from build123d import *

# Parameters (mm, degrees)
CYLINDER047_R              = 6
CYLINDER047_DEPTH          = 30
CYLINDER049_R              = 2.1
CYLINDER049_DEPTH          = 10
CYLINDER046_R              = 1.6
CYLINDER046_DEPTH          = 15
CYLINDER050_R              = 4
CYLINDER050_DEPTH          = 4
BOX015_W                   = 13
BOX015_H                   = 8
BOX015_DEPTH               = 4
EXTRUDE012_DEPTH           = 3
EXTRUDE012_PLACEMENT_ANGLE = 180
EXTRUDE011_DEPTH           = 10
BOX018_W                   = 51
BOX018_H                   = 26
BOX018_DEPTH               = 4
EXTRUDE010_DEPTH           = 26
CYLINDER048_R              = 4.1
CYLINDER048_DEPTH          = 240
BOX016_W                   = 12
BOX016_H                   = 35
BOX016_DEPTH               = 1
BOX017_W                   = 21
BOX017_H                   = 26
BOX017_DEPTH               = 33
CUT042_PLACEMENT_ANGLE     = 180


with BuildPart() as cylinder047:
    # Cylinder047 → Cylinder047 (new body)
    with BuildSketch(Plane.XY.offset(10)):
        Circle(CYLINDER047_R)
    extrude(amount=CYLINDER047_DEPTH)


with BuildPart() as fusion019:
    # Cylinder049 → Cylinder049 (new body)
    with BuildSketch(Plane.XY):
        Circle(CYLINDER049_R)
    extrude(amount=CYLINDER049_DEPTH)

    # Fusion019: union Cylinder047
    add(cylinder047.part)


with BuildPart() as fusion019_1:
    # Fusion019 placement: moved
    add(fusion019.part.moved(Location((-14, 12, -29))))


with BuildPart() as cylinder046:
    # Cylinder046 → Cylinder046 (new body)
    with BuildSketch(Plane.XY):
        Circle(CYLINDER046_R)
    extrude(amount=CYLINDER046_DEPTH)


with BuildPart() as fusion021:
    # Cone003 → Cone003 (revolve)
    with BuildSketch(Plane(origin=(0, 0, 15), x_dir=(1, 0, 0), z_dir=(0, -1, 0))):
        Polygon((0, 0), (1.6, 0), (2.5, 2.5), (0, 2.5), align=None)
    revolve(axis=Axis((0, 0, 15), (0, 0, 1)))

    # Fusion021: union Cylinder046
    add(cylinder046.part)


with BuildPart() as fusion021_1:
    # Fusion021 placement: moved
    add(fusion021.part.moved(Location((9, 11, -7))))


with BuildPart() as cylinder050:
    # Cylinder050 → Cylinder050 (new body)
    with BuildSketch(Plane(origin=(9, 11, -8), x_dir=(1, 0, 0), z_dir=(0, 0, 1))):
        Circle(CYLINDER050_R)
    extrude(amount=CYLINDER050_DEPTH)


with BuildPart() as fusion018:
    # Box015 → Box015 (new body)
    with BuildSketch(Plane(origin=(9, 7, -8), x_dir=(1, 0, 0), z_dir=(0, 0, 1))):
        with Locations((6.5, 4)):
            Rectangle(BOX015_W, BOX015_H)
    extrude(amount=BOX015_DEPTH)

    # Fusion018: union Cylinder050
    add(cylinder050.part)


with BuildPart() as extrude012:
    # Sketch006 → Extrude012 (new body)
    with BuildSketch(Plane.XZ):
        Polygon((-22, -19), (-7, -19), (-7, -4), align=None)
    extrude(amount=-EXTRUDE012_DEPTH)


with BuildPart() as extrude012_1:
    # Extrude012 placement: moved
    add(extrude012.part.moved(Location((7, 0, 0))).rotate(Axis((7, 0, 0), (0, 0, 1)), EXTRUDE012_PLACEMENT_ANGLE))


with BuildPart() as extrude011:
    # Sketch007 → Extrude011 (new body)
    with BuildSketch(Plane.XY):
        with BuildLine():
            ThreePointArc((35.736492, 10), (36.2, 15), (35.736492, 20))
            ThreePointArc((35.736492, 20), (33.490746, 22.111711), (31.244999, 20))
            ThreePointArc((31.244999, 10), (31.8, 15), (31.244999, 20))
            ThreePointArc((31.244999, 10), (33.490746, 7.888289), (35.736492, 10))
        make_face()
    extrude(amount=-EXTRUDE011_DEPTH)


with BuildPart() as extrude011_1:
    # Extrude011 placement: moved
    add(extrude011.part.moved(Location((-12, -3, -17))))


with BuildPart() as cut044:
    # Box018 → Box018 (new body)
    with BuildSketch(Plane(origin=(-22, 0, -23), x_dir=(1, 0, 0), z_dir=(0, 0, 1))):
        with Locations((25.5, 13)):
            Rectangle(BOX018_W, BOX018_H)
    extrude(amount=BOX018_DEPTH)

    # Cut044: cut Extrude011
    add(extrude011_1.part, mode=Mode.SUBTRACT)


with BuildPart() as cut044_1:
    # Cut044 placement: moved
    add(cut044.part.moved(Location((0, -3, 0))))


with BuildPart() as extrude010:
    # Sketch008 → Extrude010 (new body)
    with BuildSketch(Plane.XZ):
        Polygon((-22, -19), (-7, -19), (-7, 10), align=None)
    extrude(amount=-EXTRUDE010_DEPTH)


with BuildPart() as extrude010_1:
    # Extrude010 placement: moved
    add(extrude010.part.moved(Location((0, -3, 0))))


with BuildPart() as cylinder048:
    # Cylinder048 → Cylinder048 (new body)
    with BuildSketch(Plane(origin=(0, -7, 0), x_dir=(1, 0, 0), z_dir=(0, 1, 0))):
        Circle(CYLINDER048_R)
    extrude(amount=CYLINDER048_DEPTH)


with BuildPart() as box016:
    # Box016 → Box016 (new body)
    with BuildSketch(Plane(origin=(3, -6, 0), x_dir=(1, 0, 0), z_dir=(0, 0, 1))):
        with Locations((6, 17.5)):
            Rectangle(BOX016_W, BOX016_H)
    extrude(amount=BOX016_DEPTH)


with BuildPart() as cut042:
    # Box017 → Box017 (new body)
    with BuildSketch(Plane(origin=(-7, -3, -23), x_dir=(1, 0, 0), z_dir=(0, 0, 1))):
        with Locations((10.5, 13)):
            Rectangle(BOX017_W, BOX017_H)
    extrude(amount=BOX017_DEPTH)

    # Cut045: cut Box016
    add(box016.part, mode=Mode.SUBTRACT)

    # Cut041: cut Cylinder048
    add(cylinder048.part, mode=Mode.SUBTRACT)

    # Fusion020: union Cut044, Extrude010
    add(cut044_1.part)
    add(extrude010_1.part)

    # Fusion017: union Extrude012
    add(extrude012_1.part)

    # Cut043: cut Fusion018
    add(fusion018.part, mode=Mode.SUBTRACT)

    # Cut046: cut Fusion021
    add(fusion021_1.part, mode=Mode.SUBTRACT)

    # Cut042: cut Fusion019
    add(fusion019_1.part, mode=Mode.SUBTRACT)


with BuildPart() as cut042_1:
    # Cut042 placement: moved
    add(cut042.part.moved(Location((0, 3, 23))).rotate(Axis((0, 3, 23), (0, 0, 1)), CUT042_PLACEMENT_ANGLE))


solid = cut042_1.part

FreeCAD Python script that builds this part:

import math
import FreeCAD as App
import Part
import Sketcher
from FreeCAD import Vector


def add_polygon(sketch, points):
    """Adds a closed chain of lines whose ends are joined by coincident constraints."""
    first, n = sketch.GeometryCount, len(points)
    for a, b in zip(points, points[1:] + points[:1]):
        sketch.addGeometry(Part.LineSegment(App.Vector(*a, 0), App.Vector(*b, 0)), False)
    for i in range(n):
        sketch.addConstraint(Sketcher.Constraint("Coincident", first + i, 2, first + (i + 1) % n, 1))

doc = App.newDocument("Part")
body = doc.addObject("PartDesign::Body", "Body")

# Sketch on XY plane
sketch1 = body.newObject("Sketcher::SketchObject", "Sketch")
sketch1.AttachmentSupport = (doc.getObject("XY_Plane"), [""])
sketch1.MapMode = "FlatFace"
sketch1.AttachmentOffset = App.Placement(Vector(0, 0, 10), App.Rotation())
sketch1.addGeometry(Part.Circle(Vector(0, 0, 0), Vector(0, 0, 1), 6), False)
sketch1.addConstraint([
    Sketcher.Constraint("Coincident", 0, 3, -1, 1),
    Sketcher.Constraint("Diameter", 0, 12.0),
])
pad1 = body.newObject("PartDesign::Pad", "Pad")
pad1.Profile = sketch1
pad1.Length = 30
body2 = doc.addObject("PartDesign::Body", "Body001")

# Sketch on XY plane
sketch2 = body2.newObject("Sketcher::SketchObject", "Sketch001")
sketch2.AttachmentSupport = (doc.getObject("XY_Plane001"), [""])
sketch2.MapMode = "FlatFace"
sketch2.addGeometry(Part.Circle(Vector(0, 0, 0), Vector(0, 0, 1), 2.1), False)
sketch2.addConstraint([
    Sketcher.Constraint("Coincident", 0, 3, -1, 1),
    Sketcher.Constraint("Diameter", 0, 4.2),
])
pad2 = body2.newObject("PartDesign::Pad", "Pad001")
pad2.Profile = sketch2
pad2.Length = 10
doc.recompute()

boolean = body2.newObject("PartDesign::Boolean", "Boolean")
boolean.Type = "Fuse"
boolean.addObjects([body])
body3 = doc.addObject("PartDesign::Body", "Body002")
doc.recompute()

body2.Placement = App.Placement(Vector(-14, 12, -29), App.Rotation(Vector(0, 0, 1), 0))
boolean2 = body3.newObject("PartDesign::Boolean", "Boolean001")
boolean2.Type = "Fuse"
boolean2.addObjects([body2])
body4 = doc.addObject("PartDesign::Body", "Body003")

# Sketch on XY plane
sketch3 = body4.newObject("Sketcher::SketchObject", "Sketch002")
sketch3.AttachmentSupport = (doc.getObject("XY_Plane003"), [""])
sketch3.MapMode = "FlatFace"
sketch3.addGeometry(Part.Circle(Vector(0, 0, 0), Vector(0, 0, 1), 1.6), False)
sketch3.addConstraint([
    Sketcher.Constraint("Coincident", 0, 3, -1, 1),
    Sketcher.Constraint("Diameter", 0, 3.2),
])
pad3 = body4.newObject("PartDesign::Pad", "Pad002")
pad3.Profile = sketch3
pad3.Length = 15
body5 = doc.addObject("PartDesign::Body", "Body004")

# Sketch on XZ plane
sketch4 = body5.newObject("Sketcher::SketchObject", "Sketch003")
sketch4.AttachmentSupport = (doc.getObject("XZ_Plane004"), [""])
sketch4.MapMode = "FlatFace"
add_polygon(sketch4, [(0, 15), (1.6, 15), (2.5, 17.5), (0, 17.5)])  # lines 0-3
sketch4.addConstraint([
    Sketcher.Constraint("Horizontal", 0),
    Sketcher.Constraint("Horizontal", 2),
    Sketcher.Constraint("Vertical", 3),
    Sketcher.Constraint("PointOnObject", 2, 2, -2),
    Sketcher.Constraint("Equal", 2, 3),
    Sketcher.Constraint("DistanceX", 0, 1, 0, 2, 1.6),
    Sketcher.Constraint("DistanceX", 2, 2, 2, 1, 2.5),
    Sketcher.Constraint("DistanceY", -1, 1, 0, 2, 15.0),
])
revolution = body5.newObject("PartDesign::Revolution", "Revolution")
revolution.Profile = sketch4
revolution.ReferenceAxis = (sketch4, ["V_Axis"])
revolution.Angle = 360
doc.recompute()

boolean3 = body5.newObject("PartDesign::Boolean", "Boolean002")
boolean3.Type = "Fuse"
boolean3.addObjects([body4])
body6 = doc.addObject("PartDesign::Body", "Body005")
doc.recompute()

body5.Placement = App.Placement(Vector(9, 11, -7), App.Rotation(Vector(0, 0, 1), 0))
boolean4 = body6.newObject("PartDesign::Boolean", "Boolean003")
boolean4.Type = "Fuse"
boolean4.addObjects([body5])
body7 = doc.addObject("PartDesign::Body", "Body006")

# Sketch on XY plane
sketch5 = body7.newObject("Sketcher::SketchObject", "Sketch004")
sketch5.AttachmentSupport = (doc.getObject("XY_Plane006"), [""])
sketch5.MapMode = "FlatFace"
sketch5.AttachmentOffset = App.Placement(Vector(0, 0, -8), App.Rotation())
sketch5.addGeometry(Part.Circle(Vector(9, 11, 0), Vector(0, 0, 1), 4), False)
sketch5.addConstraint([
    Sketcher.Constraint("Diameter", 0, 8.0),
    Sketcher.Constraint("DistanceX", -1, 1, 0, 3, 9.0),
    Sketcher.Constraint("DistanceY", -1, 1, 0, 3, 11.0),
])
pad4 = body7.newObject("PartDesign::Pad", "Pad003")
pad4.Profile = sketch5
pad4.Length = 4
body8 = doc.addObject("PartDesign::Body", "Body007")

# Sketch on XY plane
sketch6 = body8.newObject("Sketcher::SketchObject", "Sketch005")
sketch6.AttachmentSupport = (doc.getObject("XY_Plane007"), [""])
sketch6.MapMode = "FlatFace"
sketch6.AttachmentOffset = App.Placement(Vector(0, 0, -8), App.Rotation())
add_polygon(sketch6, [(9, 15), (9, 7), (22, 7), (22, 15)])  # lines 0-3
sketch6.addConstraint([
    Sketcher.Constraint("Vertical", 0),
    Sketcher.Constraint("Horizontal", 1),
    Sketcher.Constraint("Vertical", 2),
    Sketcher.Constraint("Horizontal", 3),
    Sketcher.Constraint("DistanceX", 1, 1, 1, 2, 13.0),
    Sketcher.Constraint("DistanceY", 0, 2, 0, 1, 8.0),
    Sketcher.Constraint("DistanceX", -1, 1, 0, 2, 9.0),
    Sketcher.Constraint("DistanceY", -1, 1, 0, 2, 7.0),
])
pad5 = body8.newObject("PartDesign::Pad", "Pad004")
pad5.Profile = sketch6
pad5.Length = 4
doc.recompute()

boolean5 = body8.newObject("PartDesign::Boolean", "Boolean004")
boolean5.Type = "Fuse"
boolean5.addObjects([body7])
body9 = doc.addObject("PartDesign::Body", "Body008")

# Sketch on XZ plane
sketch7 = body9.newObject("Sketcher::SketchObject", "Sketch006")
sketch7.AttachmentSupport = (doc.getObject("XZ_Plane008"), [""])
sketch7.MapMode = "FlatFace"
add_polygon(sketch7, [(-22, -19), (-7, -19), (-7, -4)])  # lines 0-2
sketch7.addConstraint([
    Sketcher.Constraint("Horizontal", 0),
    Sketcher.Constraint("Vertical", 1),
    Sketcher.Constraint("Equal", 0, 1),
    Sketcher.Constraint("DistanceX", 0, 1, 0, 2, 15.0),
    Sketcher.Constraint("DistanceX", 0, 2, -1, 1, 7.0),
    Sketcher.Constraint("DistanceY", 0, 2, -1, 1, 19.0),
])
pad6 = body9.newObject("PartDesign::Pad", "Pad005")
pad6.Profile = sketch7
pad6.Length = 3
pad6.Reversed = True
body10 = doc.addObject("PartDesign::Body", "Body009")
doc.recompute()

body9.Placement = App.Placement(Vector(7, 0, 0), App.Rotation(Vector(0, 0, 1), 180))
boolean6 = body10.newObject("PartDesign::Boolean", "Boolean005")
boolean6.Type = "Fuse"
boolean6.addObjects([body9])
body11 = doc.addObject("PartDesign::Body", "Body010")

# Sketch on XY plane
sketch8 = body11.newObject("Sketcher::SketchObject", "Sketch007")
sketch8.AttachmentSupport = (doc.getObject("XY_Plane010"), [""])
sketch8.MapMode = "FlatFace"
sketch8.addGeometry([
    Part.ArcOfCircle(Part.Circle(Vector(9, 15, 0), Vector(0, 0, 1), 27.2), math.radians(-11), math.radians(11)),
    Part.ArcOfCircle(Part.Circle(Vector(33.5, 19.9, 0), Vector(0, 0, 1), 2.3), math.radians(4), math.radians(176)),
    Part.ArcOfCircle(Part.Circle(Vector(9, 15, 0), Vector(0, 0, 1), 22.8), math.radians(-13), math.radians(13)),
    Part.ArcOfCircle(Part.Circle(Vector(33.5, 10.1, 0), Vector(0, 0, 1), 2.3), math.radians(-176), math.radians(-4)),
], False)
sketch8.addConstraint([
    Sketcher.Constraint("Coincident", 0, 2, 1, 1),
    Sketcher.Constraint("Coincident", 1, 2, 2, 2),
    Sketcher.Constraint("Coincident", 2, 1, 3, 1),
    Sketcher.Constraint("Coincident", 3, 2, 0, 1),
    Sketcher.Constraint("Equal", 1, 3),
    Sketcher.Constraint("Horizontal", 0, 3, 2, 3),
    Sketcher.Constraint("Horizontal", 0, 2, 1, 2),
    Sketcher.Constraint("Horizontal", 2, 1, 3, 2),
    Sketcher.Constraint("Vertical", 1, 3, 3, 3),
    Sketcher.Constraint("Radius", 1, 2.25),
    Sketcher.Constraint("DistanceY", -1, 1, 0, 3, 15.0),
    Sketcher.Constraint("DistanceY", -1, 1, 0, 2, 20.0),
    Sketcher.Constraint("DistanceX", -1, 1, 1, 2, 31.244999),
    Sketcher.Constraint("Radius", 0, 27.200005),
    Sketcher.Constraint("Radius", 2, 22.799982),
    Sketcher.Constraint("DistanceY", -1, 1, 1, 3, 19.861711),
])
pad7 = body11.newObject("PartDesign::Pad", "Pad006")
pad7.Profile = sketch8
pad7.Length = 10
pad7.Reversed = True
body12 = doc.addObject("PartDesign::Body", "Body011")
doc.recompute()

body11.Placement = App.Placement(Vector(-12, -3, -17), App.Rotation(Vector(0, 0, 1), 0))
boolean7 = body12.newObject("PartDesign::Boolean", "Boolean006")
boolean7.Type = "Fuse"
boolean7.addObjects([body11])
body13 = doc.addObject("PartDesign::Body", "Body012")

# Sketch on XY plane
sketch9 = body13.newObject("Sketcher::SketchObject", "Sketch008")
sketch9.AttachmentSupport = (doc.getObject("XY_Plane012"), [""])
sketch9.MapMode = "FlatFace"
sketch9.AttachmentOffset = App.Placement(Vector(0, 0, -23), App.Rotation())
add_polygon(sketch9, [(-22, 26), (-22, 0), (29, 0), (29, 26)])  # lines 0-3
sketch9.addConstraint([
    Sketcher.Constraint("Vertical", 0),
    Sketcher.Constraint("Horizontal", 1),
    Sketcher.Constraint("Vertical", 2),
    Sketcher.Constraint("Horizontal", 3),
    Sketcher.Constraint("PointOnObject", 0, 2, -1),
    Sketcher.Constraint("DistanceX", 1, 1, 1, 2, 51.0),
    Sketcher.Constraint("DistanceY", 0, 2, 0, 1, 26.0),
    Sketcher.Constraint("DistanceX", 0, 2, -1, 1, 22.0),
])
pad8 = body13.newObject("PartDesign::Pad", "Pad007")
pad8.Profile = sketch9
pad8.Length = 4
doc.recompute()

boolean8 = body13.newObject("PartDesign::Boolean", "Boolean007")
boolean8.Type = "Cut"
boolean8.addObjects([body12])
body14 = doc.addObject("PartDesign::Body", "Body013")
doc.recompute()

body13.Placement = App.Placement(Vector(0, -3, 0), App.Rotation(Vector(0, 0, 1), 0))
boolean9 = body14.newObject("PartDesign::Boolean", "Boolean008")
boolean9.Type = "Fuse"
boolean9.addObjects([body13])
body15 = doc.addObject("PartDesign::Body", "Body014")

# Sketch on XZ plane
sketch10 = body15.newObject("Sketcher::SketchObject", "Sketch009")
sketch10.AttachmentSupport = (doc.getObject("XZ_Plane014"), [""])
sketch10.MapMode = "FlatFace"
add_polygon(sketch10, [(-22, -19), (-7, -19), (-7, 10)])  # lines 0-2
sketch10.addConstraint([
    Sketcher.Constraint("Horizontal", 0),
    Sketcher.Constraint("Vertical", 1),
    Sketcher.Constraint("DistanceX", 0, 1, 0, 2, 15.0),
    Sketcher.Constraint("DistanceY", 1, 1, 1, 2, 29.0),
    Sketcher.Constraint("DistanceX", 0, 2, -1, 1, 7.0),
    Sketcher.Constraint("DistanceY", 0, 2, -1, 1, 19.0),
])
pad9 = body15.newObject("PartDesign::Pad", "Pad008")
pad9.Profile = sketch10
pad9.Length = 26
pad9.Reversed = True
body16 = doc.addObject("PartDesign::Body", "Body015")
doc.recompute()

body15.Placement = App.Placement(Vector(0, -3, 0), App.Rotation(Vector(0, 0, 1), 0))
boolean10 = body16.newObject("PartDesign::Boolean", "Boolean009")
boolean10.Type = "Fuse"
boolean10.addObjects([body15])
body17 = doc.addObject("PartDesign::Body", "Body016")

# Sketch on XZ plane
sketch11 = body17.newObject("Sketcher::SketchObject", "Sketch010")
sketch11.AttachmentSupport = (doc.getObject("XZ_Plane016"), [""])
sketch11.MapMode = "FlatFace"
sketch11.AttachmentOffset = App.Placement(Vector(0, 0, 7), App.Rotation())
sketch11.addGeometry(Part.Circle(Vector(0, 0, 0), Vector(0, 0, 1), 4.1), False)
sketch11.addConstraint([
    Sketcher.Constraint("Coincident", 0, 3, -1, 1),
    Sketcher.Constraint("Diameter", 0, 8.2),
])
pad10 = body17.newObject("PartDesign::Pad", "Pad009")
pad10.Profile = sketch11
pad10.Length = 240
pad10.Reversed = True
body18 = doc.addObject("PartDesign::Body", "Body017")

# Sketch on XY plane
sketch12 = body18.newObject("Sketcher::SketchObject", "Sketch011")
sketch12.AttachmentSupport = (doc.getObject("XY_Plane017"), [""])
sketch12.MapMode = "FlatFace"
add_polygon(sketch12, [(3, 29), (3, -6), (15, -6), (15, 29)])  # lines 0-3
sketch12.addConstraint([
    Sketcher.Constraint("Vertical", 0),
    Sketcher.Constraint("Horizontal", 1),
    Sketcher.Constraint("Vertical", 2),
    Sketcher.Constraint("Horizontal", 3),
    Sketcher.Constraint("DistanceX", 1, 1, 1, 2, 12.0),
    Sketcher.Constraint("DistanceY", 0, 2, 0, 1, 35.0),
    Sketcher.Constraint("DistanceX", -1, 1, 0, 2, 3.0),
    Sketcher.Constraint("DistanceY", 0, 2, -1, 1, 6.0),
])
pad11 = body18.newObject("PartDesign::Pad", "Pad010")
pad11.Profile = sketch12
pad11.Length = 1
body19 = doc.addObject("PartDesign::Body", "Body018")

# Sketch on XY plane
sketch13 = body19.newObject("Sketcher::SketchObject", "Sketch012")
sketch13.AttachmentSupport = (doc.getObject("XY_Plane018"), [""])
sketch13.MapMode = "FlatFace"
sketch13.AttachmentOffset = App.Placement(Vector(0, 0, -23), App.Rotation())
add_polygon(sketch13, [(-7, 23), (-7, -3), (14, -3), (14, 23)])  # lines 0-3
sketch13.addConstraint([
    Sketcher.Constraint("Vertical", 0),
    Sketcher.Constraint("Horizontal", 1),
    Sketcher.Constraint("Vertical", 2),
    Sketcher.Constraint("Horizontal", 3),
    Sketcher.Constraint("DistanceX", 1, 1, 1, 2, 21.0),
    Sketcher.Constraint("DistanceY", 0, 2, 0, 1, 26.0),
    Sketcher.Constraint("DistanceX", 0, 2, -1, 1, 7.0),
    Sketcher.Constraint("DistanceY", 0, 2, -1, 1, 3.0),
])
pad12 = body19.newObject("PartDesign::Pad", "Pad011")
pad12.Profile = sketch13
pad12.Length = 33
doc.recompute()

boolean11 = body19.newObject("PartDesign::Boolean", "Boolean010")
boolean11.Type = "Cut"
boolean11.addObjects([body18])
doc.recompute()

boolean12 = body19.newObject("PartDesign::Boolean", "Boolean011")
boolean12.Type = "Cut"
boolean12.addObjects([body17])
doc.recompute()

boolean13 = body19.newObject("PartDesign::Boolean", "Boolean012")
boolean13.Type = "Fuse"
boolean13.addObjects([body14])
doc.recompute()

boolean14 = body19.newObject("PartDesign::Boolean", "Boolean013")
boolean14.Type = "Fuse"
boolean14.addObjects([body16])
doc.recompute()

boolean15 = body19.newObject("PartDesign::Boolean", "Boolean014")
boolean15.Type = "Fuse"
boolean15.addObjects([body10])
doc.recompute()

boolean16 = body19.newObject("PartDesign::Boolean", "Boolean015")
boolean16.Type = "Cut"
boolean16.addObjects([body8])
doc.recompute()

boolean17 = body19.newObject("PartDesign::Boolean", "Boolean016")
boolean17.Type = "Cut"
boolean17.addObjects([body6])
doc.recompute()

boolean18 = body19.newObject("PartDesign::Boolean", "Boolean017")
boolean18.Type = "Cut"
boolean18.addObjects([body3])
body20 = doc.addObject("PartDesign::Body", "Body019")
doc.recompute()

body19.Placement = App.Placement(Vector(0, 3, 23), App.Rotation(Vector(0, 0, 1), 180))
boolean19 = body20.newObject("PartDesign::Boolean", "Boolean018")
boolean19.Type = "Fuse"
boolean19.addObjects([body19])

doc.recompute()
